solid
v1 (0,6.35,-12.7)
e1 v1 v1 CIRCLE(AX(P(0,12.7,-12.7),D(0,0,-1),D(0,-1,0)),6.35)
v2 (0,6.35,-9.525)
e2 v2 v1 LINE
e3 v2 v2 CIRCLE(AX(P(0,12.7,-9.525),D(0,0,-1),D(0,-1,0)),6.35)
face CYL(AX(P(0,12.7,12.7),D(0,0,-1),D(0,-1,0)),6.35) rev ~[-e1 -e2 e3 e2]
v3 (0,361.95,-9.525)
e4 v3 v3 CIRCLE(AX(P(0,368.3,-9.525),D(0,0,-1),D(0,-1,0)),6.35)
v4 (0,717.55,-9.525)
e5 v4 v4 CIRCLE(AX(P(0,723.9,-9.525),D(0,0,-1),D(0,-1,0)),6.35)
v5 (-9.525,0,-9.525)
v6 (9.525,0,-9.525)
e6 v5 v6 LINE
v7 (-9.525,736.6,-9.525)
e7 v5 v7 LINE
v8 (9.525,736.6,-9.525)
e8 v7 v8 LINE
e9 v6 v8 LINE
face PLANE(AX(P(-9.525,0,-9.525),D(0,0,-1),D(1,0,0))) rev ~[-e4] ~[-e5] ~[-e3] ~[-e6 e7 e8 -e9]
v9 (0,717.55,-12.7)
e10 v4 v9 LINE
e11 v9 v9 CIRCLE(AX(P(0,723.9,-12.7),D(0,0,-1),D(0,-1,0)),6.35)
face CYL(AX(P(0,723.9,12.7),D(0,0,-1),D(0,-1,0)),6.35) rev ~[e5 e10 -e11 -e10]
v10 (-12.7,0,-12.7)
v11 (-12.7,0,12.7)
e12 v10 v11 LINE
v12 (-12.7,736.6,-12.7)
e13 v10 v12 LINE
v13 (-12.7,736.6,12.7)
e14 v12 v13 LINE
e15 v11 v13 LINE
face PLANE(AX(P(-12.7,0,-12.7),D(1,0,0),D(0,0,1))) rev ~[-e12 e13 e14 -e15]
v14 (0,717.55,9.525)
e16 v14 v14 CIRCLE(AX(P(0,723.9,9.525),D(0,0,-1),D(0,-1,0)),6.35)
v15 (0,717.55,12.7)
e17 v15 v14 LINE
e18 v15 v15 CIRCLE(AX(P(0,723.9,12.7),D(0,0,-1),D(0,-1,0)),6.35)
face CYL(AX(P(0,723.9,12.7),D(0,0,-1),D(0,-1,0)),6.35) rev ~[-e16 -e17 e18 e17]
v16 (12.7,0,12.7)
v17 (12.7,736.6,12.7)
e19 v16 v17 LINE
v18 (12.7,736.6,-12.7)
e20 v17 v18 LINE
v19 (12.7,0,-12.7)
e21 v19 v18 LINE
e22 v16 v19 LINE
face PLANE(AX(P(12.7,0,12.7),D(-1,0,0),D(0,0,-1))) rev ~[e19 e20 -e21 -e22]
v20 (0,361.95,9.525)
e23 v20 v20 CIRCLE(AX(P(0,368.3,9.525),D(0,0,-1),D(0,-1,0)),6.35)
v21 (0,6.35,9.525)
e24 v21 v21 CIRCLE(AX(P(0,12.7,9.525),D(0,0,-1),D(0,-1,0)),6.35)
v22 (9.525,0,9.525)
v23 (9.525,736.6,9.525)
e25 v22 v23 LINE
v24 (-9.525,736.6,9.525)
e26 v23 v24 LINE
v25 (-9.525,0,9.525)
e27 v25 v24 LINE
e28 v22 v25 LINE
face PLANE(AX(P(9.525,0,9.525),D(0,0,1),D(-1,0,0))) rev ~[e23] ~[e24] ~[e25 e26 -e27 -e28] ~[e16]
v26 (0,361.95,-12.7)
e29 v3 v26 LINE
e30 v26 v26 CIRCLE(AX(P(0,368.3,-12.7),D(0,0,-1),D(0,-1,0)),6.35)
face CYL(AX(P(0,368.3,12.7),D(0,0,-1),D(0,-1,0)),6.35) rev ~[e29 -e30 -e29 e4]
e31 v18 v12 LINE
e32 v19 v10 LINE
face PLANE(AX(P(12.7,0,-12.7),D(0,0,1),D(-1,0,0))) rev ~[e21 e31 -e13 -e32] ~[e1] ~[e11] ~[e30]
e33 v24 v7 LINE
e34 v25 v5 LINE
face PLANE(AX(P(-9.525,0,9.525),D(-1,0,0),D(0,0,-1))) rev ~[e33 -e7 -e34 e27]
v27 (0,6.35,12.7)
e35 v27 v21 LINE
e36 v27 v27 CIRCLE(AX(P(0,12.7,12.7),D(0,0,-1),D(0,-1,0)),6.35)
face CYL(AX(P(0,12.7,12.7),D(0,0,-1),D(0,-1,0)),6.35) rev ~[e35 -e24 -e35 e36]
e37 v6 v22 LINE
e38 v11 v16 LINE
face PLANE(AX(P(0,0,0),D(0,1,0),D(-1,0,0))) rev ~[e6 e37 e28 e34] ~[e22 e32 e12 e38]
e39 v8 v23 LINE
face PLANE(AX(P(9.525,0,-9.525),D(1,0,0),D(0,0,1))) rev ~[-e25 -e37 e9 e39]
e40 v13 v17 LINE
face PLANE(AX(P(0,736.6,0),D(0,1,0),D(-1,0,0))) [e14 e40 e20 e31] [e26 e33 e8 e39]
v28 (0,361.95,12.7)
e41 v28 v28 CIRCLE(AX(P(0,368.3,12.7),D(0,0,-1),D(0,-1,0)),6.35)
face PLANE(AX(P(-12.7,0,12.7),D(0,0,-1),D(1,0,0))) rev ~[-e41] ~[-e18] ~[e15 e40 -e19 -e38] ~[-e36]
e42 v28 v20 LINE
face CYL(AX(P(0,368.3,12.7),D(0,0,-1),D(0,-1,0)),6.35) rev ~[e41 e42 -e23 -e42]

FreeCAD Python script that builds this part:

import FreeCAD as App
import Part
import Sketcher

V = App.Vector
Q = App.Units.Quantity


def add_polygon(sketch, points):
    """Adds a closed chain of lines whose ends are joined by coincident constraints."""
    first, n = sketch.GeometryCount, len(points)
    for a, b in zip(points, points[1:] + points[:1]):
        sketch.addGeometry(Part.LineSegment(App.Vector(*a, 0), App.Vector(*b, 0)), False)
    for i in range(n):
        sketch.addConstraint(Sketcher.Constraint("Coincident", first + i, 2, first + (i + 1) % n, 1))

doc = App.newDocument("Part")
body = doc.addObject("PartDesign::Body", "Body")

# Sketch on XZ plane
sketch1 = body.newObject("Sketcher::SketchObject", "Sketch")
sketch1.AttachmentSupport = (doc.getObject("XZ_Plane"), [""])
sketch1.MapMode = "FlatFace"
add_polygon(sketch1, [(-12.7, -12.7), (-12.7, 12.7), (12.7, 12.7), (12.7, -12.7)])  # lines 0-3
add_polygon(sketch1, [(9.525, -9.525), (9.525, 9.525), (-9.525, 9.525), (-9.525, -9.525)])  # lines 4-7
sketch1.addConstraint([
    Sketcher.Constraint("Vertical", 0),
    Sketcher.Constraint("Horizontal", 1),
    Sketcher.Constraint("Vertical", 2),
    Sketcher.Constraint("Horizontal", 3),
    Sketcher.Constraint("Vertical", 4),
    Sketcher.Constraint("Horizontal", 5),
    Sketcher.Constraint("Vertical", 6),
    Sketcher.Constraint("Horizontal", 7),
    Sketcher.Constraint("Symmetric", 0, 2, 2, 2, -1, 1),
    Sketcher.Constraint("Symmetric", 4, 2, 6, 2, -1, 1),
    Sketcher.Constraint("Equal", 3, 0),
    Sketcher.Constraint("Equal", 7, 4),
    Sketcher.Constraint("DistanceX", 1, 1, 1, 2, Q("1 in")),
    Sketcher.Constraint("DistanceX", 4, 2, 1, 2, Q("0.125 in")),
])
pad1 = body.newObject("PartDesign::Pad", "Pad")
pad1.Profile = sketch1
pad1.Length = Q("29 in")
pad1.Reversed = True

# Sketch on XY plane
sketch2 = body.newObject("Sketcher::SketchObject", "Sketch001")
sketch2.AttachmentSupport = (doc.getObject("XY_Plane"), [""])
sketch2.MapMode = "FlatFace"
sketch2.AttachmentOffset = App.Placement(V(0, 0, 0.5 * 25.4), App.Rotation())
sketch2.addGeometry([
    Part.Circle(V(0, 12.7, 0), V(0, 0, 1), 6.35),
    Part.Circle(V(0, 723.9, 0), V(0, 0, 1), 6.35),
    Part.Circle(V(0, 368.3, 0), V(0, 0, 1), 6.35),
], False)
sketch2.addConstraint([
    Sketcher.Constraint("Equal", 0, 1),
    Sketcher.Constraint("Equal", 1, 2),
    Sketcher.Constraint("PointOnObject", 0, 3, -2),
    Sketcher.Constraint("PointOnObject", 1, 3, -2),
    Sketcher.Constraint("PointOnObject", 2, 3, -2),
    Sketcher.Constraint("Diameter", 0, Q("0.5 in")),
    Sketcher.Constraint("DistanceY", 0, 3, 1, 3, Q("28 in")),
    Sketcher.Constraint("DistanceY", 2, 3, 1, 3, Q("14 in")),
    Sketcher.Constraint("DistanceY", -1, 1, 0, 3, Q("0.5 in")),
])
doc.recompute()
hole = body.newObject("PartDesign::Hole", "Hole")
hole.Profile = sketch2
hole.ThreadType = "None"
hole.Diameter = Q("0.5 in")
hole.DepthType = "ThroughAll"

doc.recompute()
